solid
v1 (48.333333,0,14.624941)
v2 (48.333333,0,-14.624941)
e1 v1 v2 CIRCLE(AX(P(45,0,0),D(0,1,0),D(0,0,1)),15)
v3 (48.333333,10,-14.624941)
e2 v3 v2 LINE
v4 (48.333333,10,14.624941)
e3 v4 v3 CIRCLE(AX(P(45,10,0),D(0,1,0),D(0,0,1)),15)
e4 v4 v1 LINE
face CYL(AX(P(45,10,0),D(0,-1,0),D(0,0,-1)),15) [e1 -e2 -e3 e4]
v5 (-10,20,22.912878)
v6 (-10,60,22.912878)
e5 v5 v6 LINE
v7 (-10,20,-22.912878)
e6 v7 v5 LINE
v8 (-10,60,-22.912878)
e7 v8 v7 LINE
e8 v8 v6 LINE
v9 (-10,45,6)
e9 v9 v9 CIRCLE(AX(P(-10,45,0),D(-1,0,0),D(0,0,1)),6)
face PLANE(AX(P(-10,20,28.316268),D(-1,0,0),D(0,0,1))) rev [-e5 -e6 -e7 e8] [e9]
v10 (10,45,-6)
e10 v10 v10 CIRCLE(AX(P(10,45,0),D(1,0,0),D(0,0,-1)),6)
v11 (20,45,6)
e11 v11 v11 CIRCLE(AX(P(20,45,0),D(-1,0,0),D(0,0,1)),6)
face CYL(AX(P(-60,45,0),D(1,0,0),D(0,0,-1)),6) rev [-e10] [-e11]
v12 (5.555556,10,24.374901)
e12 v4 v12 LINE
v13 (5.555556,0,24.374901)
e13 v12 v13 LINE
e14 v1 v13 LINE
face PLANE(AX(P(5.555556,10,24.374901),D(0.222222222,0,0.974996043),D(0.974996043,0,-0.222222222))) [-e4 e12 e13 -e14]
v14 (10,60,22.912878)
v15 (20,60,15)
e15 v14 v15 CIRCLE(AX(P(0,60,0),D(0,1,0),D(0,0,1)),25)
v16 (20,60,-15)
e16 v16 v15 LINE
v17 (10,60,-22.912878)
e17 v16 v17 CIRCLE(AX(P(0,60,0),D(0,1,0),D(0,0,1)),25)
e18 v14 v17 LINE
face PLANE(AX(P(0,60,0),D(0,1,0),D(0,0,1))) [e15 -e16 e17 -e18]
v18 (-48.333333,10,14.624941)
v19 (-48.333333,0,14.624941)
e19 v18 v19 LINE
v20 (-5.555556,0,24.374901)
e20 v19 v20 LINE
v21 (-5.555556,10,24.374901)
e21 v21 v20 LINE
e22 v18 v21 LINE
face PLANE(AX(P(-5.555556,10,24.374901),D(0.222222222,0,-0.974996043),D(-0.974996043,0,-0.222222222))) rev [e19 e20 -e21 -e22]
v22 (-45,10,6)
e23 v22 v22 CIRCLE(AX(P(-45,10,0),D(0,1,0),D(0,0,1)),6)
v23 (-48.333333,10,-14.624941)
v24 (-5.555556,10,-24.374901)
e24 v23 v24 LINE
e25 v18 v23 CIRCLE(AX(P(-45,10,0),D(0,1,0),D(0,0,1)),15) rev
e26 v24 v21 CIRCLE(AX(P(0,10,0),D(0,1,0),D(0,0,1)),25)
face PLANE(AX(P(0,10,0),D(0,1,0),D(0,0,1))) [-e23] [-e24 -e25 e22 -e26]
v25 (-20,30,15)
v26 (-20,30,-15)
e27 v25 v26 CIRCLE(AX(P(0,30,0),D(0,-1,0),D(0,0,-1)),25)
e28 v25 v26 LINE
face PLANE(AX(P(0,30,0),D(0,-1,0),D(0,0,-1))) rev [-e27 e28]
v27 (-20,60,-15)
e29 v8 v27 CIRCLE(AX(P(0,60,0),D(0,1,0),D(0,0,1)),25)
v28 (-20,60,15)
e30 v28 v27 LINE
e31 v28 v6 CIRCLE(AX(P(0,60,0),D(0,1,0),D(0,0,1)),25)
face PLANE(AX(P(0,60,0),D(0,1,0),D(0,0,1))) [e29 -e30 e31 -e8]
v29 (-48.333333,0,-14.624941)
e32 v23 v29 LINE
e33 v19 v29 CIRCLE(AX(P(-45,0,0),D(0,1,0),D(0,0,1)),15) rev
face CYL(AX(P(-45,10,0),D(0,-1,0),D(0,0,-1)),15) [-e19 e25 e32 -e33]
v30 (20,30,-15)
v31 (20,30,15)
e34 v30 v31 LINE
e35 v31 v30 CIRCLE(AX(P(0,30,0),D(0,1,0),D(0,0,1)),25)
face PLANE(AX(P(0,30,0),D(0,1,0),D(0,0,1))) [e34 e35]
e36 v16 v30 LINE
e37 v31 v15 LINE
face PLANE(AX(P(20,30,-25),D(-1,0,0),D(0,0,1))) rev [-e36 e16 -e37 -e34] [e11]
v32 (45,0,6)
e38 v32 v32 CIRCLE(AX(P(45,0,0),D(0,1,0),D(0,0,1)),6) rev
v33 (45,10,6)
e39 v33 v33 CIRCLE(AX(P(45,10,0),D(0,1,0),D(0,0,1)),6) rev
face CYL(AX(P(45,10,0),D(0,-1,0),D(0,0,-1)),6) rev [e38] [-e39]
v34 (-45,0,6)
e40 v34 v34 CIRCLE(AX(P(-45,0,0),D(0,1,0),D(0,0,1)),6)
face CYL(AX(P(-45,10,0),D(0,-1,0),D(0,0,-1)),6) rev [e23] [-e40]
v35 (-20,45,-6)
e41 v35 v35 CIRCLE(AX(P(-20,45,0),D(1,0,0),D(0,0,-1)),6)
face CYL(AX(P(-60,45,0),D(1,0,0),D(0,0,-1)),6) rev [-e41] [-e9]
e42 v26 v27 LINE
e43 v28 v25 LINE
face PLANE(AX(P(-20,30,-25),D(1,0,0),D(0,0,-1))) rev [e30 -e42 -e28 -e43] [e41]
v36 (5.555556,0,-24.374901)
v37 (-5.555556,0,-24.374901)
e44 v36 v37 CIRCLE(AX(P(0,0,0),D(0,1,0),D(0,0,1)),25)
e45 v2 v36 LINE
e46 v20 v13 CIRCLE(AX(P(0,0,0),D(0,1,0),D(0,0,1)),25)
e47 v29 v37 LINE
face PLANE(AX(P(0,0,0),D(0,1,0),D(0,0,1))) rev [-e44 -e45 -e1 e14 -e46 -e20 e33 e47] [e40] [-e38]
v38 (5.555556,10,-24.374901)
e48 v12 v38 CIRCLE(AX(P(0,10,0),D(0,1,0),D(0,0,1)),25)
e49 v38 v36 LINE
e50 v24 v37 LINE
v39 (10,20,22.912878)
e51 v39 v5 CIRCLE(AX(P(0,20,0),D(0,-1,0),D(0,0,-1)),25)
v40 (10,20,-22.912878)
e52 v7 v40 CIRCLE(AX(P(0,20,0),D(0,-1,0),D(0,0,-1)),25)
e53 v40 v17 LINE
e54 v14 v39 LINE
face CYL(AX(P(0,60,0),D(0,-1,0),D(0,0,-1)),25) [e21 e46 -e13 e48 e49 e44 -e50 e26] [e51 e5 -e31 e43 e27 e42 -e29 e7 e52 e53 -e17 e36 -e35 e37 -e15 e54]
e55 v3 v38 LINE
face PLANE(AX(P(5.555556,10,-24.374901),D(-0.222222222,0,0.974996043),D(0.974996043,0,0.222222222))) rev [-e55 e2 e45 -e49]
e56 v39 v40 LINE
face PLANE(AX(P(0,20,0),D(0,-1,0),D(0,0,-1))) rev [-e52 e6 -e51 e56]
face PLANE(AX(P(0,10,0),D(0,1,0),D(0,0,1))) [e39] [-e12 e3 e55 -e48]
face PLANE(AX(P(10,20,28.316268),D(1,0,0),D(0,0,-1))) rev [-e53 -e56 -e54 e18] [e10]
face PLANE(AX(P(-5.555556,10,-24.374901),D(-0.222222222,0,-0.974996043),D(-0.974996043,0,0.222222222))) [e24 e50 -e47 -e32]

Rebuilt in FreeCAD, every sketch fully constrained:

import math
import FreeCAD as App
import Part
import Sketcher
from FreeCAD import Vector
Q = App.Units.Quantity


def add_polygon(sketch, points):
    """Adds a closed chain of lines whose ends are joined by coincident constraints."""
    first, n = sketch.GeometryCount, len(points)
    for a, b in zip(points, points[1:] + points[:1]):
        sketch.addGeometry(Part.LineSegment(App.Vector(*a, 0), App.Vector(*b, 0)), False)
    for i in range(n):
        sketch.addConstraint(Sketcher.Constraint("Coincident", first + i, 2, first + (i + 1) % n, 1))

doc = App.newDocument("Part")
params = doc.addObject("Spreadsheet::Sheet", "Params")
for row, (alias, value) in enumerate([
    ("sketch1_diameter", "12 mm"),
    ("sketch1_radius", "25 mm"),
    ("sketch1_radius2", "15 mm"),
    ("pad1_length", "10 mm"),
    ("sketch2_diameter", "12 mm"),
    ("sketch2_radius", "15 mm"),
    ("sketch2_radius2", "25 mm"),
    ("pad2_length", "10 mm"),
    ("sketch3_diameter", "50 mm"),
    ("pad3_length", "60 mm"),
    ("sketch4_width", "20 mm"),
    ("pocket1_length", "40 mm"),
    ("sketch5_width", "5 mm"),
    ("sketch5_height", "50 mm"),
    ("pocket2_length", "30 mm"),
    ("sketch6_diameter", "12 mm"),
], start=1):
    params.set(f"A{row}", alias)
    params.set(f"B{row}", "=" + value)
    params.setAlias(f"B{row}", alias)

body = doc.addObject("PartDesign::Body", "Body")

sketch1 = body.newObject("Sketcher::SketchObject", "Sketch")
sketch1.AttachmentSupport = (doc.getObject("XZ_Plane"), [""])
sketch1.MapMode = "FlatFace"
sketch1.addGeometry([
    Part.LineSegment(Vector(48, -15, 0), Vector(6, -24, 0)),
    Part.ArcOfCircle(Part.Circle(Vector(0, 0, 0), Vector(0, 0, 1), 25), math.radians(-77), math.radians(0)),
    Part.ArcOfCircle(Part.Circle(Vector(0, 0, 0), Vector(0, 0, 1), 25), math.radians(0), math.radians(77)),
    Part.LineSegment(Vector(6, 24, 0), Vector(48, 15, 0)),
    Part.ArcOfCircle(Part.Circle(Vector(45, 0, 0), Vector(0, 0, 1), 15), math.radians(-77), math.radians(77)),
    Part.Circle(Vector(45, 0, 0), Vector(0, 0, 1), 6),
], False)
sketch1.addConstraint([
    Sketcher.Constraint("Tangent", 0, 2, 1, 1),
    Sketcher.Constraint("Tangent", 1, 2, 2, 1),
    Sketcher.Constraint("Tangent", 2, 2, 3, 1),
    Sketcher.Constraint("Tangent", 3, 2, 4, 2),
    Sketcher.Constraint("Tangent", 4, 1, 0, 1),
    Sketcher.Constraint("Coincident", 1, 3, -1, 1),
    Sketcher.Constraint("Coincident", 5, 3, 4, 3),
    Sketcher.Constraint("Equal", 1, 2),
    Sketcher.Constraint("PointOnObject", 4, 3, -1),
    Sketcher.Constraint("PointOnObject", 1, 2, -1),
    Sketcher.Constraint("Diameter", 5, Q("12 mm")),
    Sketcher.Constraint("Radius", 1, Q("25 mm")),
    Sketcher.Constraint("Radius", 4, Q("15 mm")),
    Sketcher.Constraint("DistanceX", -1, 1, 4, 3, Q("45 mm")),
])
sketch1.setExpression("Constraints[10]", "Params.sketch1_diameter")
sketch1.setExpression("Constraints[11]", "Params.sketch1_radius")
sketch1.setExpression("Constraints[12]", "Params.sketch1_radius2")
pad1 = body.newObject("PartDesign::Pad", "Pad")
pad1.Profile = sketch1
pad1.setExpression("Length", "Params.pad1_length")
pad1.Reversed = True
body2 = doc.addObject("PartDesign::Body", "Body001")

sketch2 = body2.newObject("Sketcher::SketchObject", "Sketch001")
sketch2.AttachmentSupport = (doc.getObject("XZ_Plane001"), [""])
sketch2.MapMode = "FlatFace"
sketch2.addGeometry([
    Part.LineSegment(Vector(-6, -24, 0), Vector(-48, -15, 0)),
    Part.ArcOfCircle(Part.Circle(Vector(-45, 0, 0), Vector(0, 0, 1), 15), math.radians(103), math.radians(257)),
    Part.LineSegment(Vector(-48, 15, 0), Vector(-6, 24, 0)),
    Part.ArcOfCircle(Part.Circle(Vector(0, 0, 0), Vector(0, 0, 1), 25), math.radians(103), math.radians(257)),
    Part.Circle(Vector(-45, 0, 0), Vector(0, 0, 1), 6),
], False)
sketch2.addConstraint([
    Sketcher.Constraint("Tangent", 0, 2, 1, 2),
    Sketcher.Constraint("Tangent", 1, 1, 2, 1),
    Sketcher.Constraint("Tangent", 2, 2, 3, 1),
    Sketcher.Constraint("Tangent", 3, 2, 0, 1),
    Sketcher.Constraint("Coincident", 3, 3, -1, 1),
    Sketcher.Constraint("Coincident", 4, 3, 1, 3),
    Sketcher.Constraint("PointOnObject", 1, 3, -1),
    Sketcher.Constraint("Diameter", 4, Q("12 mm")),
    Sketcher.Constraint("Radius", 1, Q("15 mm")),
    Sketcher.Constraint("Radius", 3, Q("25 mm")),
    Sketcher.Constraint("DistanceX", 1, 3, -1, 1, Q("45 mm")),
])
sketch2.setExpression("Constraints[7]", "Params.sketch2_diameter")
sketch2.setExpression("Constraints[8]", "Params.sketch2_radius")
sketch2.setExpression("Constraints[9]", "Params.sketch2_radius2")
pad2 = body2.newObject("PartDesign::Pad", "Pad001")
pad2.Profile = sketch2
pad2.setExpression("Length", "Params.pad2_length")
pad2.Reversed = True
body.AllowCompound = True
doc.recompute()

boolean = body.newObject("PartDesign::Boolean", "Boolean")
boolean.Type = "Fuse"
boolean.addObjects([body2])

sketch3 = body.newObject("Sketcher::SketchObject", "Sketch002")
sketch3.AttachmentSupport = (doc.getObject("XZ_Plane"), [""])
sketch3.MapMode = "FlatFace"
sketch3.addGeometry(Part.Circle(Vector(0, 0, 0), Vector(0, 0, 1), 25), False)
sketch3.addConstraint([
    Sketcher.Constraint("Coincident", 0, 3, -1, 1),
    Sketcher.Constraint("Diameter", 0, Q("50 mm")),
])
sketch3.setExpression("Constraints[1]", "Params.sketch3_diameter")
pad3 = body.newObject("PartDesign::Pad", "Pad002")
pad3.Profile = sketch3
pad3.setExpression("Length", "Params.pad3_length")
pad3.Reversed = True

sketch4 = body.newObject("Sketcher::SketchObject", "Sketch003")
sketch4.AttachmentSupport = (doc.getObject("XZ_Plane"), [""])
sketch4.MapMode = "FlatFace"
sketch4.AttachmentOffset = App.Placement(Vector(0, 0, -60), App.Rotation())
add_polygon(sketch4, [(-10, -28), (-10, 28), (10, 28), (10, -28)])
sketch4.addConstraint([
    Sketcher.Constraint("Vertical", 0),
    Sketcher.Constraint("Horizontal", 1),
    Sketcher.Constraint("Vertical", 2),
    Sketcher.Constraint("Horizontal", 3),
    Sketcher.Constraint("Symmetric", 0, 2, 2, 2, -1, 1),
    Sketcher.Constraint("DistanceX", 1, 1, 1, 2, Q("20 mm")),
    Sketcher.Constraint("DistanceY", 0, 1, 0, 2, Q("56.632536 mm")),
])
sketch4.setExpression("Constraints[9]", "Params.sketch4_width")
pocket1 = body.newObject("PartDesign::Pocket", "Pocket")
pocket1.Profile = sketch4
pocket1.setExpression("Length", "Params.pocket1_length")
pocket1.Reversed = True

sketch5 = body.newObject("Sketcher::SketchObject", "Sketch004")
sketch5.AttachmentSupport = (doc.getObject("XZ_Plane"), [""])
sketch5.MapMode = "FlatFace"
sketch5.AttachmentOffset = App.Placement(Vector(0, 0, -60), App.Rotation())
add_polygon(sketch5, [(-25, -25), (-25, 25), (-20, 25), (-20, -25)])
add_polygon(sketch5, [(20, -25), (20, 25), (25, 25), (25, -25)])
sketch5.addConstraint([
    Sketcher.Constraint("Vertical", 0),
    Sketcher.Constraint("Horizontal", 1),
    Sketcher.Constraint("Vertical", 2),
    Sketcher.Constraint("Horizontal", 3),
    Sketcher.Constraint("Vertical", 4),
    Sketcher.Constraint("Horizontal", 5),
    Sketcher.Constraint("Vertical", 6),
    Sketcher.Constraint("Horizontal", 7),
    Sketcher.Constraint("Symmetric", 2, 2, 4, 2, -1, 1),
    Sketcher.Constraint("Symmetric", 0, 2, 6, 2, -1, 1),
    Sketcher.Constraint("Horizontal", 1, 2, 4, 2),
    Sketcher.Constraint("DistanceX", 1, 1, 1, 2, Q("5 mm")),
    Sketcher.Constraint("DistanceY", 0, 1, 0, 2, Q("50 mm")),
    Sketcher.Constraint("DistanceX", 0, 2, -1, 1, Q("25 mm")),
])
sketch5.setExpression("Constraints[19]", "Params.sketch5_width")
sketch5.setExpression("Constraints[20]", "Params.sketch5_height")
pocket2 = body.newObject("PartDesign::Pocket", "Pocket001")
pocket2.Profile = sketch5
pocket2.setExpression("Length", "Params.pocket2_length")
pocket2.Reversed = True

sketch6 = body.newObject("Sketcher::SketchObject", "Sketch005")
sketch6.AttachmentSupport = (doc.getObject("YZ_Plane"), [""])
sketch6.MapMode = "FlatFace"
sketch6.AttachmentOffset = App.Placement(Vector(0, 0, 20), App.Rotation())
sketch6.addGeometry(Part.Circle(Vector(45, 0, 0), Vector(0, 0, 1), 6), False)
sketch6.addConstraint([
    Sketcher.Constraint("PointOnObject", 0, 3, -1),
    Sketcher.Constraint("Diameter", 0, Q("12 mm")),
    Sketcher.Constraint("DistanceX", -1, 1, 0, 3, Q("45 mm")),
])
sketch6.setExpression("Constraints[1]", "Params.sketch6_diameter")
pocket3 = body.newObject("PartDesign::Pocket", "Pocket002")
pocket3.Profile = sketch6
pocket3.Type = "ThroughAll"
pocket3.Midplane = True

doc.recompute()
